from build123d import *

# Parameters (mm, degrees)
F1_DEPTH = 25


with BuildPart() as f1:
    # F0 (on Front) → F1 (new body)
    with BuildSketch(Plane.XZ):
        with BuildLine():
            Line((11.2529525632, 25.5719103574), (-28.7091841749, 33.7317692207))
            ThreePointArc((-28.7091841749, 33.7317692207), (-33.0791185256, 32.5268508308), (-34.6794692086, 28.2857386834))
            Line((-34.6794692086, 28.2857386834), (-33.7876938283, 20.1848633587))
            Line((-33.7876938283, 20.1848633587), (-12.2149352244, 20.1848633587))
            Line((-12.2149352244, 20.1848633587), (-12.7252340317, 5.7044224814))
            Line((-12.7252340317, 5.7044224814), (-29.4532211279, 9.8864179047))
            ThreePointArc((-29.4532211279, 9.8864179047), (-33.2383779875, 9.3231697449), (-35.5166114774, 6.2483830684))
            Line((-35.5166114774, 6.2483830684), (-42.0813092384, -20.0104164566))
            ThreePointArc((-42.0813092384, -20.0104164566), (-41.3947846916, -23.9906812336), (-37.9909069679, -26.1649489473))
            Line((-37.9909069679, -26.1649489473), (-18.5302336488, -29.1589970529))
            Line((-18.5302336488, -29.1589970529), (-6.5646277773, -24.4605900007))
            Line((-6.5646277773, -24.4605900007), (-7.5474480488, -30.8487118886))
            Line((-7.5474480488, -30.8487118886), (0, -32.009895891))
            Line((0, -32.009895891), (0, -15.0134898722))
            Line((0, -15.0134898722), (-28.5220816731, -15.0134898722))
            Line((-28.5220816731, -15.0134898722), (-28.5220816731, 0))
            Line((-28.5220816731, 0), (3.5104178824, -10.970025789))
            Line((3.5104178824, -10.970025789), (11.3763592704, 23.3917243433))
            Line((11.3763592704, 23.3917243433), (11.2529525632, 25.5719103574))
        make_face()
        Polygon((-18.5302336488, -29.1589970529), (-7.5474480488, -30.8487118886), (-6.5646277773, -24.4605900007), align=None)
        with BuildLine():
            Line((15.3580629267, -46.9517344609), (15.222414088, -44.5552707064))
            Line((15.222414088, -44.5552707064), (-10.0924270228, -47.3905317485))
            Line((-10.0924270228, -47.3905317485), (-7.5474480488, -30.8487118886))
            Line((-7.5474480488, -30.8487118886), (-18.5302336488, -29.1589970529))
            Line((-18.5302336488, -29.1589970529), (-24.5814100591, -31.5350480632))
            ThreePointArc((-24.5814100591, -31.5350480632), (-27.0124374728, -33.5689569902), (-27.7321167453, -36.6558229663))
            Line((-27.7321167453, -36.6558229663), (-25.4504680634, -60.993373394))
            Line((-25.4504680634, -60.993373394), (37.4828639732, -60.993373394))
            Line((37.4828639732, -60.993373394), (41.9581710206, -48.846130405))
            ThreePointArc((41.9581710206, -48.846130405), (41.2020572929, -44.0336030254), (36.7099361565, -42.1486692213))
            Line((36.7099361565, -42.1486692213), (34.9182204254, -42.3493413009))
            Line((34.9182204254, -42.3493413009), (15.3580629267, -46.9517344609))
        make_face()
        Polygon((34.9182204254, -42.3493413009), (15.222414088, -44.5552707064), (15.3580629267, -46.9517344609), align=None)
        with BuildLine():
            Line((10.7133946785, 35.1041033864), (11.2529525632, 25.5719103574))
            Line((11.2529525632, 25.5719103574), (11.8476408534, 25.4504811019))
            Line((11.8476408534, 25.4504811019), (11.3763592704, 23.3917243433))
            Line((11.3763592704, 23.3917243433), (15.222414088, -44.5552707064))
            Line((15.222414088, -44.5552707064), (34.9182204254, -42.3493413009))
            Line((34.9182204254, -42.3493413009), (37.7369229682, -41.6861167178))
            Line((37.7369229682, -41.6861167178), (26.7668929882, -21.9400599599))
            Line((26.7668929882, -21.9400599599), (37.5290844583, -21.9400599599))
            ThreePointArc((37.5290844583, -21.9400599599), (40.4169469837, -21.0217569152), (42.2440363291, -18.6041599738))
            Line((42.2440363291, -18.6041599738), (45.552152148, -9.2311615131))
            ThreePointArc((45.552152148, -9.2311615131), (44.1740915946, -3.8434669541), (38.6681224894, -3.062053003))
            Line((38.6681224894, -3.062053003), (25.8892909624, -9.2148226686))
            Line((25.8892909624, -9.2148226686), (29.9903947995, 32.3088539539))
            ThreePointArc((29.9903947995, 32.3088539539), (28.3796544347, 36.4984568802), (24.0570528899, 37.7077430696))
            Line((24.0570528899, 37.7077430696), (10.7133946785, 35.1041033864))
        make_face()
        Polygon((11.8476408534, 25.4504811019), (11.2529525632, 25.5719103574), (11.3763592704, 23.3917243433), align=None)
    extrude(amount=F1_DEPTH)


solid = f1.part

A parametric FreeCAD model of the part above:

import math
import FreeCAD as App
import Part
import Sketcher

V = App.Vector


def add_polygon(sketch, points):
    """Adds a closed chain of lines whose ends are joined by coincident constraints."""
    first, n = sketch.GeometryCount, len(points)
    for a, b in zip(points, points[1:] + points[:1]):
        sketch.addGeometry(Part.LineSegment(App.Vector(*a, 0), App.Vector(*b, 0)), False)
    for i in range(n):
        sketch.addConstraint(Sketcher.Constraint("Coincident", first + i, 2, first + (i + 1) % n, 1))

doc = App.newDocument("Part")
params = doc.addObject("Spreadsheet::Sheet", "Params")
for row, (alias, value) in enumerate([
    ("sketch1_radius", "5 mm"),
    ("pad1_length", "25 mm"),
], start=1):
    params.set(f"A{row}", alias)
    params.set(f"B{row}", "=" + value)
    params.setAlias(f"B{row}", alias)

body = doc.addObject("PartDesign::Body", "Body")

sketch1 = body.newObject("Sketcher::SketchObject", "Sketch")
sketch1.AttachmentSupport = (doc.getObject("XZ_Plane"), [""])
sketch1.MapMode = "FlatFace"
sketch1.addGeometry(Part.LineSegment(V(10.7, 35.1, 0), V(11.3, 25.6, 0)), False)
sketch1.addGeometry(Part.LineSegment(V(11.3, 25.6, 0), V(-28.7, 33.7, 0)), False)
sketch1.addGeometry(Part.ArcOfCircle(Part.Circle(V(-29.7, 28.8, 0), V(0, 0, 1), 5), math.radians(78), math.radians(186)), False)
sketch1.addGeometry(Part.LineSegment(V(-34.7, 28.3, 0), V(-33.8, 20.2, 0)), False)
sketch1.addGeometry(Part.LineSegment(V(-33.8, 20.2, 0), V(-12.2, 20.2, 0)), False)
sketch1.addGeometry(Part.LineSegment(V(-12.2, 20.2, 0), V(-12.7, 5.7, 0)), False)
sketch1.addGeometry(Part.LineSegment(V(-12.7, 5.7, 0), V(-29.5, 9.9, 0)), False)
sketch1.addGeometry(Part.ArcOfCircle(Part.Circle(V(-30.7, 5, 0), V(0, 0, 1), 5), math.radians(76), math.radians(166)), False)
sketch1.addGeometry(Part.LineSegment(V(-35.5, 6.2, 0), V(-42.1, -20, 0)), False)
sketch1.addGeometry(Part.ArcOfCircle(Part.Circle(V(-37.2, -21.2, 0), V(0, 0, 1), 5), math.radians(166), math.radians(261)), False)
sketch1.addGeometry(Part.LineSegment(V(-38, -26.2, 0), V(-18.5, -29.2, 0)), False)
sketch1.addGeometry(Part.LineSegment(V(-18.5, -29.2, 0), V(-24.6, -31.5, 0)), False)
sketch1.addGeometry(Part.ArcOfCircle(Part.Circle(V(-22.8, -36.2, 0), V(0, 0, 1), 5), math.radians(111), math.radians(185)), False)
sketch1.addGeometry(Part.LineSegment(V(-27.7, -36.7, 0), V(-25.5, -61, 0)), False)
sketch1.addGeometry(Part.LineSegment(V(-25.5, -61, 0), V(37.5, -61, 0)), False)
sketch1.addGeometry(Part.LineSegment(V(37.5, -61, 0), V(42, -48.8, 0)), False)
sketch1.addGeometry(Part.ArcOfCircle(Part.Circle(V(37.3, -47.1, 0), V(0, 0, 1), 5), math.radians(-20), math.radians(96)), False)
sketch1.addGeometry(Part.LineSegment(V(36.7, -42.1, 0), V(34.9, -42.3, 0)), False)
sketch1.addGeometry(Part.LineSegment(V(34.9, -42.3, 0), V(37.7, -41.7, 0)), False)
sketch1.addGeometry(Part.LineSegment(V(37.7, -41.7, 0), V(26.8, -21.9, 0)), False)
sketch1.addGeometry(Part.LineSegment(V(26.8, -21.9, 0), V(37.5, -21.9, 0)), False)
sketch1.addGeometry(Part.ArcOfCircle(Part.Circle(V(37.5, -16.9, 0), V(0, 0, 1), 5), math.radians(-90), math.radians(-19)), False)
sketch1.addGeometry(Part.LineSegment(V(42.2, -18.6, 0), V(45.6, -9.2, 0)), False)
sketch1.addGeometry(Part.ArcOfCircle(Part.Circle(V(40.8, -7.6, 0), V(0, 0, 1), 5), math.radians(-19), math.radians(116)), False)
sketch1.addGeometry(Part.LineSegment(V(38.7, -3.1, 0), V(25.9, -9.2, 0)), False)
sketch1.addGeometry(Part.LineSegment(V(25.9, -9.2, 0), V(30, 32.3, 0)), False)
sketch1.addGeometry(Part.ArcOfCircle(Part.Circle(V(25, 32.8, 0), V(0, 0, 1), 5), math.radians(-6), math.radians(101)), False)
sketch1.addGeometry(Part.LineSegment(V(24.1, 37.7, 0), V(10.7, 35.1, 0)), False)
add_polygon(sketch1, [(3.5, -11), (11.4, 23.4), (15.2, -44.6), (-10.1, -47.4), (-7.5, -30.8), (0, -32), (0, -15), (-28.5, -15), (-28.5, 0)])
sketch1.addConstraint(Sketcher.Constraint("Coincident", 0, 2, 1, 1))
sketch1.addConstraint(Sketcher.Constraint("Tangent", 1, 2, 2, 1))
sketch1.addConstraint(Sketcher.Constraint("Tangent", 2, 2, 3, 1))
sketch1.addConstraint(Sketcher.Constraint("Coincident", 3, 2, 4, 1))
sketch1.addConstraint(Sketcher.Constraint("Coincident", 4, 2, 5, 1))
sketch1.addConstraint(Sketcher.Constraint("Coincident", 5, 2, 6, 1))
sketch1.addConstraint(Sketcher.Constraint("Tangent", 6, 2, 7, 1))
sketch1.addConstraint(Sketcher.Constraint("Tangent", 7, 2, 8, 1))
sketch1.addConstraint(Sketcher.Constraint("Tangent", 8, 2, 9, 1))
sketch1.addConstraint(Sketcher.Constraint("Tangent", 9, 2, 10, 1))
sketch1.addConstraint(Sketcher.Constraint("Coincident", 10, 2, 11, 1))
sketch1.addConstraint(Sketcher.Constraint("Tangent", 11, 2, 12, 1))
sketch1.addConstraint(Sketcher.Constraint("Tangent", 12, 2, 13, 1))
sketch1.addConstraint(Sketcher.Constraint("Coincident", 13, 2, 14, 1))
sketch1.addConstraint(Sketcher.Constraint("Coincident", 14, 2, 15, 1))
sketch1.addConstraint(Sketcher.Constraint("Tangent", 15, 2, 16, 1))
sketch1.addConstraint(Sketcher.Constraint("Tangent", 16, 2, 17, 1))
sketch1.addConstraint(Sketcher.Constraint("Coincident", 17, 2, 18, 1))
sketch1.addConstraint(Sketcher.Constraint("Coincident", 18, 2, 19, 1))
sketch1.addConstraint(Sketcher.Constraint("Coincident", 19, 2, 20, 1))
sketch1.addConstraint(Sketcher.Constraint("Tangent", 20, 2, 21, 1))
sketch1.addConstraint(Sketcher.Constraint("Tangent", 21, 2, 22, 1))
sketch1.addConstraint(Sketcher.Constraint("Tangent", 22, 2, 23, 1))
sketch1.addConstraint(Sketcher.Constraint("Tangent", 23, 2, 24, 1))
sketch1.addConstraint(Sketcher.Constraint("Coincident", 24, 2, 25, 1))
sketch1.addConstraint(Sketcher.Constraint("Tangent", 25, 2, 26, 1))
sketch1.addConstraint(Sketcher.Constraint("Tangent", 26, 2, 27, 1))
sketch1.addConstraint(Sketcher.Constraint("Coincident", 27, 2, 0, 1))
sketch1.addConstraint(Sketcher.Constraint("Horizontal", 4))
sketch1.addConstraint(Sketcher.Constraint("Horizontal", 14))
sketch1.addConstraint(Sketcher.Constraint("Horizontal", 20))
sketch1.addConstraint(Sketcher.Constraint("Vertical", 33))
sketch1.addConstraint(Sketcher.Constraint("Horizontal", 34))
sketch1.addConstraint(Sketcher.Constraint("Vertical", 35))
sketch1.addConstraint(Sketcher.Constraint("Equal", 2, 7))
sketch1.addConstraint(Sketcher.Constraint("Equal", 7, 9))
sketch1.addConstraint(Sketcher.Constraint("Equal", 9, 12))
sketch1.addConstraint(Sketcher.Constraint("Equal", 12, 16))
sketch1.addConstraint(Sketcher.Constraint("Equal", 16, 21))
sketch1.addConstraint(Sketcher.Constraint("Equal", 21, 23))
sketch1.addConstraint(Sketcher.Constraint("Equal", 23, 26))
sketch1.addConstraint(Sketcher.Constraint("PointOnObject", 32, 2, -2))
sketch1.addConstraint(Sketcher.Constraint("PointOnObject", 35, 2, -1))
sketch1.addConstraint(Sketcher.Constraint("Perpendicular", 6, 8))
sketch1.addConstraint(Sketcher.Constraint("Parallel", 0, 29))
sketch1.addConstraint(Sketcher.Constraint("Parallel", 17, 30))
sketch1.addConstraint(Sketcher.Constraint("Perpendicular", 10, 31))
sketch1.addConstraint(Sketcher.Constraint("Perpendicular", 31, 32))
sketch1.addConstraint(Sketcher.Constraint("Radius", 2, 5.0))
sketch1.addConstraint(Sketcher.Constraint("DistanceY", 21, 3, 23, 3, 9.372998))
sketch1.addConstraint(Sketcher.Constraint("DistanceX", 10, 2, 5, 2, 5.805))
sketch1.addConstraint(Sketcher.Constraint("DistanceX", 27, 2, 25, 2, 19.277))
sketch1.addConstraint(Sketcher.Constraint("Distance", 27, 13.595299))
sketch1.addConstraint(Sketcher.Constraint("DistanceX", 4, 1, 4, 2, 21.572759))
sketch1.addConstraint(Sketcher.Constraint("DistanceX", 20, 1, 20, 2, 10.762191))
sketch1.addConstraint(Sketcher.Constraint("DistanceX", 34, 2, 34, 1, 28.522082))
sketch1.addConstraint(Sketcher.Constraint("DistanceY", 35, 1, 35, 2, 15.01349))
sketch1.addConstraint(Sketcher.Constraint("DistanceX", 7, 3, -1, 1, 30.665899))
sketch1.addConstraint(Sketcher.Constraint("DistanceY", 16, 3, -1, 1, 47.117601))
sketch1.addConstraint(Sketcher.Constraint("DistanceX", -1, 1, 23, 3, 40.8372))
sketch1.addConstraint(Sketcher.Constraint("DistanceY", 9, 3, 7, 3, 26.2588))
sketch1.addConstraint(Sketcher.Constraint("DistanceX", 12, 3, 16, 3, 60.020402))
sketch1.addConstraint(Sketcher.Constraint("DistanceX", 3, 2, 2, 3, 4.078201))
sketch1.addConstraint(Sketcher.Constraint("DistanceX", 5, 2, 4, 2, 0.510299))
sketch1.addConstraint(Sketcher.Constraint("DistanceY", 11, 2, 9, 2, 5.370099))
sketch1.addConstraint(Sketcher.Constraint("DistanceX", 8, 2, 11, 2, 17.499899))
sketch1.addConstraint(Sketcher.Constraint("DistanceY", 21, 2, 21, 3, 1.6641))
sketch1.addConstraint(Sketcher.Constraint("DistanceX", 0, 2, 26, 2, 12.8041))
sketch1.addConstraint(Sketcher.Constraint("DistanceY", 29, 2, 16, 2, 2.406601))
sketch1.addConstraint(Sketcher.Constraint("DistanceY", 32, 2, 10, 2, 2.850899))
sketch1.addConstraint(Sketcher.Constraint("Distance", 0, 9.547451))
sketch1.addConstraint(Sketcher.Constraint("Distance", 1, 40.786709))
sketch1.addConstraint(Sketcher.Constraint("Distance", 5, 14.48943))
sketch1.addConstraint(Sketcher.Constraint("Distance", 8, 27.06695))
sketch1.addConstraint(Sketcher.Constraint("Distance", 11, 6.50095))
sketch1.addConstraint(Sketcher.Constraint("Distance", 13, 24.444269))
sketch1.addConstraint(Sketcher.Constraint("Distance", 15, 12.945419))
sketch1.addConstraint(Sketcher.Constraint("Distance", 17, 1.802918))
sketch1.addConstraint(Sketcher.Constraint("Distance", 25, 41.725709))
sketch1.addConstraint(Sketcher.Constraint("Distance", 29, 68.055759))
sketch1.addConstraint(Sketcher.Constraint("Distance", 30, 25.473121))
sketch1.addConstraint(Sketcher.Constraint("Distance", 31, 16.736449))
sketch1.addConstraint(Sketcher.Constraint("Distance", 32, 7.63625))
sketch1.addConstraint(Sketcher.Constraint("Distance", 36, 33.858861))
sketch1.addConstraint(Sketcher.Constraint("DistanceX", 14, 1, 14, 2, 62.933332))
sketch1.addConstraint(Sketcher.Constraint("DistanceY", 33, 1, 33, 2, 16.996406))
sketch1.addConstraint(Sketcher.Constraint("DistanceY", 12, 3, -1, 1, 36.189119))
sketch1.addConstraint(Sketcher.Constraint("DistanceY", 21, 3, -1, 1, 16.94006))
sketch1.addConstraint(Sketcher.Constraint("DistanceY", -1, 1, 26, 3, 32.80029))
sketch1.addConstraint(Sketcher.Constraint("DistanceY", -1, 1, 0, 2, 25.57191))
sketch1.addConstraint(Sketcher.Constraint("DistanceY", -1, 1, 1, 2, 33.731769))
sketch1.addConstraint(Sketcher.Constraint("DistanceX", 18, 2, 15, 2, 4.221248))
sketch1.addConstraint(Sketcher.Constraint("DistanceY", 32, 2, 36, 2, 21.03987))
sketch1.addConstraint(Sketcher.Constraint("Distance", 18, 2.895678))
sketch1.setExpression("Constraints[57]", "Params.sketch1_radius")
pad1 = body.newObject("PartDesign::Pad", "Pad")
pad1.Profile = sketch1
pad1.setExpression("Length", "Params.pad1_length")

doc.recompute()
